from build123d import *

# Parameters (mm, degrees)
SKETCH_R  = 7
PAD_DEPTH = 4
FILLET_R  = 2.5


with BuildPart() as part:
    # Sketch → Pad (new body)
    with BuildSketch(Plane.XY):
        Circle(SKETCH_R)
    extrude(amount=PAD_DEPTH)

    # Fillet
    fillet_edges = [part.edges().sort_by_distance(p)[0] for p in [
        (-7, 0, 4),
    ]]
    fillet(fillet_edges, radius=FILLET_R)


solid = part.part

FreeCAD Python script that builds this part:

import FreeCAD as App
import Part
import Sketcher

V = App.Vector


def edges_at(feature, points):
    """Names of the edges that pass closest to the given points."""
    edges = feature.Shape.Edges
    near = lambda p: min(range(len(edges)), key=lambda i: edges[i].distToShape(Part.Vertex(*p))[0])
    return sorted({f"Edge{near(p) + 1}" for p in points})

doc = App.newDocument("Part")
params = doc.addObject("Spreadsheet::Sheet", "Params")
for row, (alias, value) in enumerate([
    ("sketch1_diameter", "14 mm"),
    ("pad1_length", "4 mm"),
    ("fillet_radius", "2.5 mm"),
], start=1):
    params.set(f"A{row}", alias)
    params.set(f"B{row}", "=" + value)
    params.setAlias(f"B{row}", alias)

body = doc.addObject("PartDesign::Body", "Body")

# Sketch on XY plane
sketch1 = doc.addObject("Sketcher::SketchObject", "Sketch")
body.addObject(sketch1)
sketch1.AttachmentSupport = (doc.XY_Plane, [""])
sketch1.MapMode = "FlatFace"
sketch1.addGeometry(Part.Circle(V(0, 0, 0), V(0, 0, 1), 7), False)
sketch1.addConstraint(Sketcher.Constraint("Coincident", 0, 3, -1, 1))
sketch1.addConstraint(Sketcher.Constraint("Diameter", 0, 14.0))
sketch1.setExpression("Constraints[1]", "Params.sketch1_diameter")
pad1 = doc.addObject("PartDesign::Pad", "Pad")
body.addObject(pad1)
pad1.Profile = sketch1
pad1.setExpression("Length", "Params.pad1_length")
doc.recompute()

fillet = doc.addObject("PartDesign::Fillet", "Fillet")
body.addObject(fillet)
fillet.Base = (pad1, edges_at(pad1, [(-7, 0, 4)]))
fillet.setExpression("Radius", "Params.fillet_radius")

doc.recompute()
